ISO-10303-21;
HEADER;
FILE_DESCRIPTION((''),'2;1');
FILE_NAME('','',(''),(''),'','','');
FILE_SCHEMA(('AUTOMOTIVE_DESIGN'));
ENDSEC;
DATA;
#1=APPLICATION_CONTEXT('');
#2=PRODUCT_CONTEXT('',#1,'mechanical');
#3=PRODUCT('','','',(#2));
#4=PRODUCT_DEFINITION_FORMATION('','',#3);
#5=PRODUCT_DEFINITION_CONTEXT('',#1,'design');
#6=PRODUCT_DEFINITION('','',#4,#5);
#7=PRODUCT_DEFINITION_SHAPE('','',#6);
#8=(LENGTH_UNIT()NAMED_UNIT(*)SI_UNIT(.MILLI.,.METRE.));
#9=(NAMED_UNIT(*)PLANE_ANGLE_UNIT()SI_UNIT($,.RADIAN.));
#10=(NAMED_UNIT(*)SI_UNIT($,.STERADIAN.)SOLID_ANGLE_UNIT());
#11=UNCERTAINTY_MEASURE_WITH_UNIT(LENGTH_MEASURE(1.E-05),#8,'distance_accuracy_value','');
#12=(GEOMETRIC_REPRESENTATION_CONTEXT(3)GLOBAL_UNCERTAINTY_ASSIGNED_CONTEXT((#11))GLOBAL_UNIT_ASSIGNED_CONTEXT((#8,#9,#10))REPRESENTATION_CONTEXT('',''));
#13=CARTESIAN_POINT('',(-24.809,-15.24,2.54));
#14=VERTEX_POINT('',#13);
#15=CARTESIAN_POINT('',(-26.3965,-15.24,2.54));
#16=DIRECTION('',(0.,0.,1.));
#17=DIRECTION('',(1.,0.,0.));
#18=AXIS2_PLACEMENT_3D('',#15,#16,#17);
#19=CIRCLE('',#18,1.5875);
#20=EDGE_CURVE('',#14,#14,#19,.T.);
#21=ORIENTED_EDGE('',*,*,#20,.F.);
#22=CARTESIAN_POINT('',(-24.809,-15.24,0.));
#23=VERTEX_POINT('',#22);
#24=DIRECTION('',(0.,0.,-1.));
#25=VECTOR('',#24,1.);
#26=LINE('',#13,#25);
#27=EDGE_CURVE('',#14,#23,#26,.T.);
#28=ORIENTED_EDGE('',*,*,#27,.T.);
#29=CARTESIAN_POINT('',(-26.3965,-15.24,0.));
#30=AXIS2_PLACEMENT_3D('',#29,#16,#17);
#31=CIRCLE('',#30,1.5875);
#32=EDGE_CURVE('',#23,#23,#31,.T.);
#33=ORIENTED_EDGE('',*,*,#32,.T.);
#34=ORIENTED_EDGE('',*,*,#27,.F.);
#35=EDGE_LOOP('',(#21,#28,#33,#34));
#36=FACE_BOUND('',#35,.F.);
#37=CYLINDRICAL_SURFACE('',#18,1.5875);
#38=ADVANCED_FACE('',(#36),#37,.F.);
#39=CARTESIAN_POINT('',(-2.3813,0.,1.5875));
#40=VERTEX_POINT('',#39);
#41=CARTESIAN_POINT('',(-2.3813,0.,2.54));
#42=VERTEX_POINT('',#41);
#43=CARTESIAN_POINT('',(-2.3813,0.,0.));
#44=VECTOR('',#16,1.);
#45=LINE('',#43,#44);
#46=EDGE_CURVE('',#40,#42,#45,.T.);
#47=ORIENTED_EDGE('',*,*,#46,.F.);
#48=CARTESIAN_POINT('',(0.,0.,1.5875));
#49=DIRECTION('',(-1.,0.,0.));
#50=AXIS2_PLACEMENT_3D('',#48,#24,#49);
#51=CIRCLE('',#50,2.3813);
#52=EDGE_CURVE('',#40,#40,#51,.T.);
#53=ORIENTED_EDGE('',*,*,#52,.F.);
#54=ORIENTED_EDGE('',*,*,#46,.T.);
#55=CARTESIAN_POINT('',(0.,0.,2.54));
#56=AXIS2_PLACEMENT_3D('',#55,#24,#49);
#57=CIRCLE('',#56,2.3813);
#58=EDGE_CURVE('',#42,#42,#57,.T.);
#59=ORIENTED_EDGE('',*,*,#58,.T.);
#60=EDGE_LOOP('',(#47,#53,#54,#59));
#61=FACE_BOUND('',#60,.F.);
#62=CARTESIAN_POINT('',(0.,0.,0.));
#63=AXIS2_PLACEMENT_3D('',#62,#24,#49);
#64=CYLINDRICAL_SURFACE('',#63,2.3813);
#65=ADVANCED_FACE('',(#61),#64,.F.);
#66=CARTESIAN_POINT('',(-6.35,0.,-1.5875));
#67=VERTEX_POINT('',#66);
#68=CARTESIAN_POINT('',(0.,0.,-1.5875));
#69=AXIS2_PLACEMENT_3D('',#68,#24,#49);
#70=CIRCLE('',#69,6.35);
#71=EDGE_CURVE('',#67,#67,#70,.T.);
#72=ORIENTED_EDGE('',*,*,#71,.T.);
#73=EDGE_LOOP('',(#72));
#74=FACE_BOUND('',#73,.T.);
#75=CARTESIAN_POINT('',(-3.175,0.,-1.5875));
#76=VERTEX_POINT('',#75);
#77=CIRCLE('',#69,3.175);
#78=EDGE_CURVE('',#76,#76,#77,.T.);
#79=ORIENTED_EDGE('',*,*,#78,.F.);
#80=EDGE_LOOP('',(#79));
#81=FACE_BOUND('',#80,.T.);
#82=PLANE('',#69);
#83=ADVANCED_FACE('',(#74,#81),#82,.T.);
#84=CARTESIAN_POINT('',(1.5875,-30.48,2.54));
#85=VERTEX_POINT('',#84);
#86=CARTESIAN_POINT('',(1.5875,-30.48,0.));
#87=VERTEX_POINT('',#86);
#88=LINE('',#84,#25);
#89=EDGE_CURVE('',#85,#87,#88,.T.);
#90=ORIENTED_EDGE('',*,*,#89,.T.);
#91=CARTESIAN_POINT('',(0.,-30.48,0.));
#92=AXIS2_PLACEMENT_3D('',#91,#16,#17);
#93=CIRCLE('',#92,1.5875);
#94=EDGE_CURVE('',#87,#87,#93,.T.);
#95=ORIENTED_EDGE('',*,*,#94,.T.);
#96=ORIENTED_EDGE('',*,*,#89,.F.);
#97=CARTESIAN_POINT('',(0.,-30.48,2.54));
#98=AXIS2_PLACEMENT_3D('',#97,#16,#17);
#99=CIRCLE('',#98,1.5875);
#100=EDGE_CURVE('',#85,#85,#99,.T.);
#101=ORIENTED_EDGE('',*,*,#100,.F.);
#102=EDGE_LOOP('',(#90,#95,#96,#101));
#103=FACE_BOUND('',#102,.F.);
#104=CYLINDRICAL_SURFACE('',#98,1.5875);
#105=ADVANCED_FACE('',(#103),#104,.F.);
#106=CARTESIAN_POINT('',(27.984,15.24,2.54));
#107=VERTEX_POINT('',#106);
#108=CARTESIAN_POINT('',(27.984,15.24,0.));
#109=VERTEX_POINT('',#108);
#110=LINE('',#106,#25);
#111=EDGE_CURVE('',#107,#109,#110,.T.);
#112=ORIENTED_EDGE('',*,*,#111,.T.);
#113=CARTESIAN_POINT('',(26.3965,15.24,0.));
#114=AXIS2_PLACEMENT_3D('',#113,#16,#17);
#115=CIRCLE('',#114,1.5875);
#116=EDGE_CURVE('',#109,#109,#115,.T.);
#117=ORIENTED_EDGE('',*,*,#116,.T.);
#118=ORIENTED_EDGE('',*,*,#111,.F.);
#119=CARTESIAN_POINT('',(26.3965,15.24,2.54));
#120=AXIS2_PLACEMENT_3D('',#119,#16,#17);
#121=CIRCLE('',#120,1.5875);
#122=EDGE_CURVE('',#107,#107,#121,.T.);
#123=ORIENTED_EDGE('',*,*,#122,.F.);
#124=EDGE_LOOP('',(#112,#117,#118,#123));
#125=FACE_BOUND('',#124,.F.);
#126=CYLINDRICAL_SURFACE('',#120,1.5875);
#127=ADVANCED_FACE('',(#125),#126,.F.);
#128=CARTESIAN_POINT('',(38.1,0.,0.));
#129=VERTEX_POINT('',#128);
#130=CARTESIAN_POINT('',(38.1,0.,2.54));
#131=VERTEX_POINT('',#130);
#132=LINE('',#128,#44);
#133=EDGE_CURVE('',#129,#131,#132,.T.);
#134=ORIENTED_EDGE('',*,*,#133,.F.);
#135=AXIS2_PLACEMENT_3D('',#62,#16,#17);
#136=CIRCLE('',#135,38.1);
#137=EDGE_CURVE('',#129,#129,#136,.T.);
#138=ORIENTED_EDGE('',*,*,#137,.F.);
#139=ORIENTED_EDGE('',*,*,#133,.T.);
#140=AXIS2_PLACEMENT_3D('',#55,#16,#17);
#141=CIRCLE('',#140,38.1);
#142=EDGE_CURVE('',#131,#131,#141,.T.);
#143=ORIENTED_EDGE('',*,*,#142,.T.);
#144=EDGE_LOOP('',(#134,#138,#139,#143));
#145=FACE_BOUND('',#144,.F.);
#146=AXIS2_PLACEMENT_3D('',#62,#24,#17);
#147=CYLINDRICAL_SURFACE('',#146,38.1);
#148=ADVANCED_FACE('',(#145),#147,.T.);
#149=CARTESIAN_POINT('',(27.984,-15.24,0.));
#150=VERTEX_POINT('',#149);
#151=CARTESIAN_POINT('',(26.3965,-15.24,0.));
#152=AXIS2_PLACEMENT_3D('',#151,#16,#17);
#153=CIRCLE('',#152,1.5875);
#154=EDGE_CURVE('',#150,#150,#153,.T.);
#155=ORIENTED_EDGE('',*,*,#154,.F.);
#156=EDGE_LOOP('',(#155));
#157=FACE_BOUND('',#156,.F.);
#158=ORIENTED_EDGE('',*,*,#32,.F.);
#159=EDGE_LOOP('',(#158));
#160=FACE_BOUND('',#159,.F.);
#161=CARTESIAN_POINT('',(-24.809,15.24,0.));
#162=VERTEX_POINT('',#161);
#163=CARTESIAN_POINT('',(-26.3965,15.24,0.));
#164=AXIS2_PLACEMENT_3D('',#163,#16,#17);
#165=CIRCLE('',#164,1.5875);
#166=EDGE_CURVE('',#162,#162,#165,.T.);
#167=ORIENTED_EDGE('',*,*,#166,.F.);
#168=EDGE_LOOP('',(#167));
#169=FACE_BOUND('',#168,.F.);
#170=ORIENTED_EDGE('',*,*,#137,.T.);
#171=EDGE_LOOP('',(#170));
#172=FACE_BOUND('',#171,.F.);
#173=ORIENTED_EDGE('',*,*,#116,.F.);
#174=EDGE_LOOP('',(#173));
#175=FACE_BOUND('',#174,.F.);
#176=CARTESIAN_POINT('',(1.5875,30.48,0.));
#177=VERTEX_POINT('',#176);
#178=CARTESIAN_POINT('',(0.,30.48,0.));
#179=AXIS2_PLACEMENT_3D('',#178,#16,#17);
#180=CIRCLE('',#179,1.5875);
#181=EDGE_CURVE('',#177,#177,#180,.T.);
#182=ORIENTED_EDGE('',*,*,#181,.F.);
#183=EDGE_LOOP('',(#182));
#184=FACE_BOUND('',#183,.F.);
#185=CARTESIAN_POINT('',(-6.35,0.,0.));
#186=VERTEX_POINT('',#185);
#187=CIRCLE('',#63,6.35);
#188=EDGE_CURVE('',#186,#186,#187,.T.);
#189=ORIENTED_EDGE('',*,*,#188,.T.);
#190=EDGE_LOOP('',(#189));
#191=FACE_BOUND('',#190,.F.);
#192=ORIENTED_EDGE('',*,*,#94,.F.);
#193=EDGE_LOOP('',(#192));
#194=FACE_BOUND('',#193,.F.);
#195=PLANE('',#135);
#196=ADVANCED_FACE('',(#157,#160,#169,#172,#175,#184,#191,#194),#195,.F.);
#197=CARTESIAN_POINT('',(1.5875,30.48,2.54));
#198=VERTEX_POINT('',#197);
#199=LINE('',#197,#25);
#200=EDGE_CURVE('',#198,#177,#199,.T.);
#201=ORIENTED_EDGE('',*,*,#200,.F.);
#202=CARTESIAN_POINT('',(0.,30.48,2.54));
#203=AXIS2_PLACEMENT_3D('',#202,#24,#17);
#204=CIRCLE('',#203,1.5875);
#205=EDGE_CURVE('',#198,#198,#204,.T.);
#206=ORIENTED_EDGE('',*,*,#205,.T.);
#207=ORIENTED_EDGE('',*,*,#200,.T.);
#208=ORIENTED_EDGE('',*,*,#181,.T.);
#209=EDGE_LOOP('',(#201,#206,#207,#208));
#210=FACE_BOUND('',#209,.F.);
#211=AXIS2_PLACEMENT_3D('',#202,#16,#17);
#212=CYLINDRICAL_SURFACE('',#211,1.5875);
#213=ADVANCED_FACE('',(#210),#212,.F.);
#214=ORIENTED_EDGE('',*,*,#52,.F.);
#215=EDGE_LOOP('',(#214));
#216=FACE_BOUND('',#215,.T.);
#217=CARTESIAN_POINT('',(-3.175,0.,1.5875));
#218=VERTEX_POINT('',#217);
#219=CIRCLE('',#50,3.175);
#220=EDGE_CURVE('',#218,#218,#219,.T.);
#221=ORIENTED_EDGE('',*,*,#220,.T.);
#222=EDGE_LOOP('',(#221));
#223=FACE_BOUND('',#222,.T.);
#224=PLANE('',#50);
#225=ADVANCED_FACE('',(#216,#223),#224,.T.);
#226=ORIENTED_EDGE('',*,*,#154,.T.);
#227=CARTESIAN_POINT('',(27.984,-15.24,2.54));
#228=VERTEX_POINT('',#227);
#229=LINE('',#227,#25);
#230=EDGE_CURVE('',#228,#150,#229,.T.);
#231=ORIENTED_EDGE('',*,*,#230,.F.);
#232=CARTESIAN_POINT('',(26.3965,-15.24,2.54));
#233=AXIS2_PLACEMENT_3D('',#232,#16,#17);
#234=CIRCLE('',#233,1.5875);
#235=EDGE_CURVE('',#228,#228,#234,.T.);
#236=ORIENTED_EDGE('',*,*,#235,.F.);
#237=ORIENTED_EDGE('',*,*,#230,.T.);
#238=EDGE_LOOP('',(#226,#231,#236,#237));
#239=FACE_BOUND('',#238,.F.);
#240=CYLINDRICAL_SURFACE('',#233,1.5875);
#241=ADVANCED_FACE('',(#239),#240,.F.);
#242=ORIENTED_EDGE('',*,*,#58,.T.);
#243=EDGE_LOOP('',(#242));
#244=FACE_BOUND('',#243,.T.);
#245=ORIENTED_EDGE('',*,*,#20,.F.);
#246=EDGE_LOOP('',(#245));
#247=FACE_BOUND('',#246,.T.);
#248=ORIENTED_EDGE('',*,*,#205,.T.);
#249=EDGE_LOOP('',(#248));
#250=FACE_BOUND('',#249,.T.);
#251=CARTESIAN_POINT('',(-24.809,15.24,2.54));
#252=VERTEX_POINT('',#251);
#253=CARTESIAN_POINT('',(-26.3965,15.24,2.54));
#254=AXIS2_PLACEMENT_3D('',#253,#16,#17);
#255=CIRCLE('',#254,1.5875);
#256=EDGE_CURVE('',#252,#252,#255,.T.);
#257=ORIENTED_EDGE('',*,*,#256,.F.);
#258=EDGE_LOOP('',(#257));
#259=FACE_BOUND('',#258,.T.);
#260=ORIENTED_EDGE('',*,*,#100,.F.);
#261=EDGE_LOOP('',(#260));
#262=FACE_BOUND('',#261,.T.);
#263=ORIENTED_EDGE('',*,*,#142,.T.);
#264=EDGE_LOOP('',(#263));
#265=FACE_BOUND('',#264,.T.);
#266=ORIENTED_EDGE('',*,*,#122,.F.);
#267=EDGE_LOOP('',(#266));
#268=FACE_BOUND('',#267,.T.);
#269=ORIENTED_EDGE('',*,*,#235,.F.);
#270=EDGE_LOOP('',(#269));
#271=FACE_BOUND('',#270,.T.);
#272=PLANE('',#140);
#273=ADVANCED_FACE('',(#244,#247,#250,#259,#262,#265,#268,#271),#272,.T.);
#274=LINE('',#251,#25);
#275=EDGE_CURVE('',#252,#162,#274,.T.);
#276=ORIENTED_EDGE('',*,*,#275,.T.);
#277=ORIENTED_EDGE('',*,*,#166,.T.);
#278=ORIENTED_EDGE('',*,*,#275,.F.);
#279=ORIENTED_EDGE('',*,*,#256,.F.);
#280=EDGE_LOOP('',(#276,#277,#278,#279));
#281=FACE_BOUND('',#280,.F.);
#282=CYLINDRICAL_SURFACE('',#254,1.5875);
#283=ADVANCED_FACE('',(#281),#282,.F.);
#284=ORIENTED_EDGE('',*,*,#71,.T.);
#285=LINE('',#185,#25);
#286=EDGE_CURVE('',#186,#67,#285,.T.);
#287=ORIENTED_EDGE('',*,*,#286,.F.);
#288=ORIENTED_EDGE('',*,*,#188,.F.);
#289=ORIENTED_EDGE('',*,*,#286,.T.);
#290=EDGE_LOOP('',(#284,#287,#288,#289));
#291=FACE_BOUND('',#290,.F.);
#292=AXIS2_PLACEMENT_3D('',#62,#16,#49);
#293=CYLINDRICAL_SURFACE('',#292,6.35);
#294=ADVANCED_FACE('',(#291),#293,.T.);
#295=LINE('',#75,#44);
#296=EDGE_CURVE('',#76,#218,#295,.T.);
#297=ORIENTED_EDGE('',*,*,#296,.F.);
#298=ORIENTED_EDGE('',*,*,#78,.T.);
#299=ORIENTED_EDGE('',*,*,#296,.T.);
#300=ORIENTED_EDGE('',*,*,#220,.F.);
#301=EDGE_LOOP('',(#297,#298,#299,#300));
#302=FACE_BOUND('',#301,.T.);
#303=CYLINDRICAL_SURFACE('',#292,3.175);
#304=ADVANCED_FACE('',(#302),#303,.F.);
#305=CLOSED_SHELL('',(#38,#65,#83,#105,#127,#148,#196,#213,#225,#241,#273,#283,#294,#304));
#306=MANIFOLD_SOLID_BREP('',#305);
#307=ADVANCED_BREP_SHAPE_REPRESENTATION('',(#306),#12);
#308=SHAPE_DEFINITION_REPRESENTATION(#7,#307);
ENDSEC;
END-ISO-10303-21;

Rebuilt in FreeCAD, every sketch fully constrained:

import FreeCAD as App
import Part
import Sketcher

V = App.Vector
Q = App.Units.Quantity

doc = App.newDocument("Part")
body = doc.addObject("PartDesign::Body", "Body")

sketch1 = doc.addObject("Sketcher::SketchObject", "Sketch")
body.addObject(sketch1)
sketch1.AttachmentSupport = (doc.XY_Plane, [""])
sketch1.MapMode = "FlatFace"
sketch1.addGeometry(Part.Circle(V(0, 0, 0), V(0, 0, 1), 38), False)
sketch1.addConstraint(Sketcher.Constraint("Coincident", 0, 3, -1, 1))
sketch1.addConstraint(Sketcher.Constraint("Diameter", 0, Q("3 in")))
pad1 = doc.addObject("PartDesign::Pad", "Pad")
body.addObject(pad1)
pad1.Profile = sketch1
pad1.Length = Q("0.1 in")

sketch2 = doc.addObject("Sketcher::SketchObject", "Sketch001")
body.addObject(sketch2)
sketch2.AttachmentSupport = (doc.XY_Plane, [""])
sketch2.MapMode = "FlatFace"
sketch2.addGeometry(Part.Circle(V(0, 0, 0), V(0, 0, 1), 2.4), False)
sketch2.addConstraint(Sketcher.Constraint("Coincident", 0, 3, -1, 1))
sketch2.addConstraint(Sketcher.Constraint("Diameter", 0, Q("0.1875 in")))
pocket1 = doc.addObject("PartDesign::Pocket", "Pocket")
body.addObject(pocket1)
pocket1.Profile = sketch2
pocket1.Length = Q("1 in")
pocket1.Reversed = True

sketch3 = doc.addObject("Sketcher::SketchObject", "Sketch002")
body.addObject(sketch3)
sketch3.AttachmentSupport = (doc.XY_Plane, [""])
sketch3.MapMode = "FlatFace"
sketch3.addGeometry(Part.Circle(V(0, 0, 0), V(0, 0, 1), 3.2), False)
sketch3.addGeometry(Part.Circle(V(0, 0, 0), V(0, 0, 1), 2.4), False)
sketch3.addConstraint(Sketcher.Constraint("Coincident", 0, 3, -1, 1))
sketch3.addConstraint(Sketcher.Constraint("Coincident", 1, 3, -1, 1))
sketch3.addConstraint(Sketcher.Constraint("Diameter", 0, Q("0.25 in")))
sketch3.addConstraint(Sketcher.Constraint("Diameter", 1, Q("0.1875 in")))
pocket2 = doc.addObject("PartDesign::Pocket", "Pocket001")
body.addObject(pocket2)
pocket2.Profile = sketch3
pocket2.Length = Q("0.0625 in")
pocket2.Reversed = True

sketch4 = doc.addObject("Sketcher::SketchObject", "Sketch003")
body.addObject(sketch4)
sketch4.AttachmentSupport = (doc.XY_Plane, [""])
sketch4.MapMode = "FlatFace"
sketch4.addGeometry(Part.Circle(V(0, 0, 0), V(0, 0, 1), 6.3), False)
sketch4.addGeometry(Part.Circle(V(0, 0, 0), V(0, 0, 1), 3.2), False)
sketch4.addConstraint(Sketcher.Constraint("Coincident", 0, 3, -1, 1))
sketch4.addConstraint(Sketcher.Constraint("Coincident", 1, 3, -1, 1))
sketch4.addConstraint(Sketcher.Constraint("Diameter", 0, Q("0.5 in")))
sketch4.addConstraint(Sketcher.Constraint("Diameter", 1, Q("0.25 in")))
pad2 = doc.addObject("PartDesign::Pad", "Pad001")
body.addObject(pad2)
pad2.Profile = sketch4
pad2.Length = Q("0.0625 in")
pad2.Reversed = True

sketch5 = doc.addObject("Sketcher::SketchObject", "Sketch004")
body.addObject(sketch5)
sketch5.AttachmentSupport = (doc.XY_Plane, [""])
sketch5.MapMode = "FlatFace"
sketch5.AttachmentOffset = App.Placement(V(0, 0, 0.1 * 25.4), App.Rotation())
sketch5.addGeometry(Part.Circle(V(0, 30.5, 0), V(0, 0, 1), 1.6), False)
sketch5.addGeometry(Part.Circle(V(-26.4, 15.2, 0), V(0, 0, 1), 1.6), False)
sketch5.addGeometry(Part.Circle(V(-26.4, -15.2, 0), V(0, 0, 1), 1.6), False)
sketch5.addGeometry(Part.Circle(V(0, -30.5, 0), V(0, 0, 1), 1.6), False)
sketch5.addGeometry(Part.Circle(V(26.4, -15.2, 0), V(0, 0, 1), 1.6), False)
sketch5.addGeometry(Part.Circle(V(26.4, 15.2, 0), V(0, 0, 1), 1.6), False)
sketch5.addConstraint(Sketcher.Constraint("Equal", 0, 1))
sketch5.addConstraint(Sketcher.Constraint("Equal", 1, 2))
sketch5.addConstraint(Sketcher.Constraint("Equal", 2, 3))
sketch5.addConstraint(Sketcher.Constraint("Equal", 3, 4))
sketch5.addConstraint(Sketcher.Constraint("Equal", 4, 5))
sketch5.addConstraint(Sketcher.Constraint("Symmetric", 0, 3, 3, 3, -1, 1))
sketch5.addConstraint(Sketcher.Constraint("Symmetric", 1, 3, 4, 3, -1, 1))
sketch5.addConstraint(Sketcher.Constraint("Symmetric", 2, 3, 5, 3, -1, 1))
sketch5.addConstraint(Sketcher.Constraint("Symmetric", 2, 3, 4, 3, -2))
sketch5.addConstraint(Sketcher.Constraint("PointOnObject", 0, 3, -2))
sketch5.addConstraint(Sketcher.Constraint("Diameter", 0, Q("0.125 in")))
sketch5.addConstraint(Sketcher.Constraint("DistanceY", -1, 1, 0, 3, Q("1.2 in")))
sketch5.addConstraint(Sketcher.Constraint("DistanceY", 2, 3, 1, 3, Q("1.2 in")))
sketch5.addConstraint(Sketcher.Constraint("DistanceX", 1, 3, -1, 1, Q("26.3965 mm")))
pocket3 = doc.addObject("PartDesign::Pocket", "Pocket002")
body.addObject(pocket3)
pocket3.Profile = sketch5
pocket3.Length = Q("1 in")

doc.recompute()
